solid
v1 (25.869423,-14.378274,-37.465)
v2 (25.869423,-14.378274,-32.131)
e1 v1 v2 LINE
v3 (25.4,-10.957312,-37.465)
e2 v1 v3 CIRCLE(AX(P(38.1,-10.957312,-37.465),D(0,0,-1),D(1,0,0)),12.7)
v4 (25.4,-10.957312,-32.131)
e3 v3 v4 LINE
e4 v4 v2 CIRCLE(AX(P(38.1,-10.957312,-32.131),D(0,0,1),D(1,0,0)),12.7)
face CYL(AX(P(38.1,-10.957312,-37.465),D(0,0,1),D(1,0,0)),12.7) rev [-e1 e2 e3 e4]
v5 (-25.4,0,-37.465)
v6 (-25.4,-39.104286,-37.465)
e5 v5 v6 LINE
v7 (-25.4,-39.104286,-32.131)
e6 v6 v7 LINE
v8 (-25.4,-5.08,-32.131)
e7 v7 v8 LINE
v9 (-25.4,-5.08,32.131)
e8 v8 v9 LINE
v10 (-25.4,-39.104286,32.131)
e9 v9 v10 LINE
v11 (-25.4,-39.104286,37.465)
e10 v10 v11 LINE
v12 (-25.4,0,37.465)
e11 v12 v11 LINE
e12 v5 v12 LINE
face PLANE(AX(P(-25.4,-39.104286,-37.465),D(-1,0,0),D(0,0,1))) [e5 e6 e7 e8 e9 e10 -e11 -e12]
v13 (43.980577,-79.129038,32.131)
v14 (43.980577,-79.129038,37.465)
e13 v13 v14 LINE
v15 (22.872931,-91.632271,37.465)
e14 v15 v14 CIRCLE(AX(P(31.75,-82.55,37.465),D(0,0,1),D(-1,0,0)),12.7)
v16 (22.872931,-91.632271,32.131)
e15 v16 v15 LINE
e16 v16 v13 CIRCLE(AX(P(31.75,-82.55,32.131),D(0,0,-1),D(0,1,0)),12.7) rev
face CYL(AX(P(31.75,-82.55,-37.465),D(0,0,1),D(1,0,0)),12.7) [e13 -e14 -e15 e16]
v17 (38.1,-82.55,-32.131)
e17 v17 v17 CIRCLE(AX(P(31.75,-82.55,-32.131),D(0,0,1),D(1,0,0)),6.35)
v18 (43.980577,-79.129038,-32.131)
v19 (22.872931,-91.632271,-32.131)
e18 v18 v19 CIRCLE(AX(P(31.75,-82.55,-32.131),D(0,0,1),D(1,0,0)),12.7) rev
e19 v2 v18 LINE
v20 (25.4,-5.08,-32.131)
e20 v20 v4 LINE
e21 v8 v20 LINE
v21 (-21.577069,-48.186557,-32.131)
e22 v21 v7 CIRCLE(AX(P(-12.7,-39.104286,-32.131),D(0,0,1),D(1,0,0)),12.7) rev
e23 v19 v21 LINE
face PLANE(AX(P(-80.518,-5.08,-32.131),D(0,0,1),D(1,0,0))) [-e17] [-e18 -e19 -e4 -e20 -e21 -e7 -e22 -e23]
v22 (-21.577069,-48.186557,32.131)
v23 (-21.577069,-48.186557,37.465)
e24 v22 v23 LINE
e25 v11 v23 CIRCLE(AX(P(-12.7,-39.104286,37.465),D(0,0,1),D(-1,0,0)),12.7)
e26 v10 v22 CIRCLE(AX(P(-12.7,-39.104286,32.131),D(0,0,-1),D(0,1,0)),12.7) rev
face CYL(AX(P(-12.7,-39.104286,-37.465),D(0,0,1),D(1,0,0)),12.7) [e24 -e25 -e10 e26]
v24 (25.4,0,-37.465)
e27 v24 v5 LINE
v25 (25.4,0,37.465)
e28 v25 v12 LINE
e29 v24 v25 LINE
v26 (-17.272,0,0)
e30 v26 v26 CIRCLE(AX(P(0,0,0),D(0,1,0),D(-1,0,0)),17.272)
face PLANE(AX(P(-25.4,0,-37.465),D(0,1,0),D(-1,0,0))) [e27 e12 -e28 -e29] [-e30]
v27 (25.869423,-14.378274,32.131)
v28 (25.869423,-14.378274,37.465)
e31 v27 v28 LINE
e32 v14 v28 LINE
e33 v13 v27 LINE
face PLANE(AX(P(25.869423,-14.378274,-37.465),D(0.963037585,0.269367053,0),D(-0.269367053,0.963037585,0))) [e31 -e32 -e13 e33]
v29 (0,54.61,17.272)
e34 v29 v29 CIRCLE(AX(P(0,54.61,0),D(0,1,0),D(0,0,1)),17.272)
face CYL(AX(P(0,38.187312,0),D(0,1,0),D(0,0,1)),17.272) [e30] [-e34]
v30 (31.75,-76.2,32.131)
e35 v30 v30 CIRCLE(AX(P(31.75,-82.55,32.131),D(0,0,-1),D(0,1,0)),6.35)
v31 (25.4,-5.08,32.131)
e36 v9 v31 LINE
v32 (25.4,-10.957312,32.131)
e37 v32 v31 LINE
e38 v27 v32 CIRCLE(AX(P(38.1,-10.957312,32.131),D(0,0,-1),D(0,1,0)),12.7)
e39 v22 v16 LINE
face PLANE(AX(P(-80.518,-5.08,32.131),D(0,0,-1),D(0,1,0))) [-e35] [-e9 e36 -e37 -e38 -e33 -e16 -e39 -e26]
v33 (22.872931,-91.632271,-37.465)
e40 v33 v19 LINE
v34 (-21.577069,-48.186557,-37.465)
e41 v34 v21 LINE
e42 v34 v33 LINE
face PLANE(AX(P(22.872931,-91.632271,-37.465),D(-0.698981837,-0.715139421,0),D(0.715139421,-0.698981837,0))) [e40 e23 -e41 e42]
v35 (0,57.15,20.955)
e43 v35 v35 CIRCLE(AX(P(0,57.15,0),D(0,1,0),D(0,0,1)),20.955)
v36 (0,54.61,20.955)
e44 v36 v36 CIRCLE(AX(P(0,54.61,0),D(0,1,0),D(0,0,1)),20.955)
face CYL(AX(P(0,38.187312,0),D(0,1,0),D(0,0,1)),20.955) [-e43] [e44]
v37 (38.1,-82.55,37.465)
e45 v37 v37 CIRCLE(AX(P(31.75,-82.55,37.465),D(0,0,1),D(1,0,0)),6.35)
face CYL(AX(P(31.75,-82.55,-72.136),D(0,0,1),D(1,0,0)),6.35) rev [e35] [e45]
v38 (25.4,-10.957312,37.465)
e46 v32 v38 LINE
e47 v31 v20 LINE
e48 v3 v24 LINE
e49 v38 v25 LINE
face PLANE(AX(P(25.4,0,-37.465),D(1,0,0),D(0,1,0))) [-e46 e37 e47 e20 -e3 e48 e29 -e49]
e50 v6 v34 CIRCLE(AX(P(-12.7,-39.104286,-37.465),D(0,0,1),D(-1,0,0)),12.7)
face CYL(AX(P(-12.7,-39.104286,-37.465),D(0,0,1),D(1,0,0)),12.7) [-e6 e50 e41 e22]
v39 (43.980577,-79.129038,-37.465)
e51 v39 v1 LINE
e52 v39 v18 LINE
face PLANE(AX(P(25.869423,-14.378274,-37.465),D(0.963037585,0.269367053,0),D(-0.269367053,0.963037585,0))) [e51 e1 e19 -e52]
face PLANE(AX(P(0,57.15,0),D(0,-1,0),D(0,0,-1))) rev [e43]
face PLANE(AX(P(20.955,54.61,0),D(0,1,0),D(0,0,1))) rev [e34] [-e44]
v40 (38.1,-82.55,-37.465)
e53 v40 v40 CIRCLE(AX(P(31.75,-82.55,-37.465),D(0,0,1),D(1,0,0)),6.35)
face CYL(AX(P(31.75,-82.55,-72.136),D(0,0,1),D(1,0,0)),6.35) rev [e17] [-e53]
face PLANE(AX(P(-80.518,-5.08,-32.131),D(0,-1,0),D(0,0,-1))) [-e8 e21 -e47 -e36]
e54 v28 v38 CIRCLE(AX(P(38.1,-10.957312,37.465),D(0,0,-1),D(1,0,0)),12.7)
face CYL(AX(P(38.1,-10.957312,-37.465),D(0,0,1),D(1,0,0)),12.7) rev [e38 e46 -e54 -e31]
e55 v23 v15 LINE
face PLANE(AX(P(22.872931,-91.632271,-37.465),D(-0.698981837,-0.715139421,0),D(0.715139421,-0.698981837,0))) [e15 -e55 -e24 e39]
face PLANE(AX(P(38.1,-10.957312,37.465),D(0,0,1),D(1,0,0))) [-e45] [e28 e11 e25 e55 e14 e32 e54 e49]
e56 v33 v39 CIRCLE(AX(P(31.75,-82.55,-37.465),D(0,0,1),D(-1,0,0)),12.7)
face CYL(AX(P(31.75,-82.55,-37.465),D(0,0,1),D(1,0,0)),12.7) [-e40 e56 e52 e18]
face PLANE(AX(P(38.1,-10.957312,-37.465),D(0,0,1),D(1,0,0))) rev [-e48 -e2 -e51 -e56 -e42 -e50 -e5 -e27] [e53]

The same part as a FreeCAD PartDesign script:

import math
import FreeCAD as App
import Part
import Sketcher
Q = App.Units.Quantity


def add_polygon(sketch, points):
    """Adds a closed chain of lines whose ends are joined by coincident constraints."""
    first, n = sketch.GeometryCount, len(points)
    for a, b in zip(points, points[1:] + points[:1]):
        sketch.addGeometry(Part.LineSegment(App.Vector(*a, 0), App.Vector(*b, 0)), False)
    for i in range(n):
        sketch.addConstraint(Sketcher.Constraint("Coincident", first + i, 2, first + (i + 1) % n, 1))

doc = App.newDocument("Part")
body = doc.addObject("PartDesign::Body", "Body")

# Sketch on XY plane
sketch1 = body.newObject("Sketcher::SketchObject", "Sketch")
sketch1.AttachmentSupport = (doc.getObject("XY_Plane"), [""])
sketch1.MapMode = "FlatFace"
add_polygon(sketch1, [(20.955, 57.15), (0, 57.15), (0, 0), (17.272, 0), (17.272, 54.61), (20.955, 54.61)])  # lines 0-5
sketch1.addConstraint([
    Sketcher.Constraint("Horizontal", 0),
    Sketcher.Constraint("Vertical", 1),
    Sketcher.Constraint("Horizontal", 2),
    Sketcher.Constraint("Vertical", 3),
    Sketcher.Constraint("Horizontal", 4),
    Sketcher.Constraint("Vertical", 5),
    Sketcher.Constraint("Coincident", 1, 2, -1, 1),
    Sketcher.Constraint("DistanceY", 5, 1, 5, 2, Q("0.1 in")),
    Sketcher.Constraint("DistanceX", 2, 1, 2, 2, Q("0.68 in")),
    Sketcher.Constraint("DistanceY", 1, 2, 1, 1, Q("2.25 in")),
    Sketcher.Constraint("DistanceX", 0, 2, 0, 1, Q("0.825 in")),
])
revolution = body.newObject("PartDesign::Revolution", "Revolution")
revolution.Profile = sketch1
revolution.ReferenceAxis = (sketch1, ["V_Axis"])
revolution.Angle = 360

# Sketch on XY plane
sketch2 = body.newObject("Sketcher::SketchObject", "Sketch001")
sketch2.AttachmentSupport = (doc.getObject("XY_Plane"), [""])
sketch2.MapMode = "FlatFace"
sketch2.addGeometry([
    Part.LineSegment(App.Vector(25.4, 0, 0), App.Vector(-25.4, 0, 0)),  # 0
    Part.LineSegment(App.Vector(-25.4, 0, 0), App.Vector(-25.4, -39.104286, 0)),  # 1
    Part.ArcOfCircle(Part.Circle(App.Vector(-12.7, -39.104286, 0), App.Vector(0, 0, 1), 12.7), math.radians(180), math.radians(225.654626)),  # 2
    Part.LineSegment(App.Vector(-21.577069, -48.186557, 0), App.Vector(22.872931, -91.632271, 0)),  # 3
    Part.ArcOfCircle(Part.Circle(App.Vector(31.75, -82.55, 0), App.Vector(0, 0, 1), 12.7), math.radians(-134.345374), math.radians(15.626606)),  # 4
    Part.LineSegment(App.Vector(43.980577, -79.129038, 0), App.Vector(25.869423, -14.378274, 0)),  # 5
    Part.ArcOfCircle(Part.Circle(App.Vector(38.1, -10.957312, 0), App.Vector(0, 0, 1), 12.7), math.radians(180), math.radians(195.626606)),  # 6
    Part.LineSegment(App.Vector(25.4, -10.957312, 0), App.Vector(25.4, 0, 0)),  # 7
], False)
sketch2.addConstraint([
    Sketcher.Constraint("Coincident", 0, 2, 1, 1),
    Sketcher.Constraint("Tangent", 1, 2, 2, 1),
    Sketcher.Constraint("Tangent", 2, 2, 3, 1),
    Sketcher.Constraint("Tangent", 3, 2, 4, 1),
    Sketcher.Constraint("Tangent", 4, 2, 5, 1),
    Sketcher.Constraint("Tangent", 5, 2, 6, 2),
    Sketcher.Constraint("Tangent", 6, 1, 7, 1),
    Sketcher.Constraint("Coincident", 7, 2, 0, 1),
    Sketcher.Constraint("Horizontal", 0),
    Sketcher.Constraint("Vertical", 1),
    Sketcher.Constraint("Vertical", 7),
    Sketcher.Constraint("Equal", 2, 4),
    Sketcher.Constraint("Equal", 4, 6),
    Sketcher.Constraint("Symmetric", 0, 2, 7, 2, -1, 1),
    Sketcher.Constraint("Radius", 2, Q("0.5 in")),
    Sketcher.Constraint("DistanceX", 0, 2, 0, 1, Q("2 in")),
    Sketcher.Constraint("DistanceX", -1, 1, 4, 3, Q("1.25 in")),
    Sketcher.Constraint("DistanceY", 4, 3, -1, 1, Q("3.25 in")),
    Sketcher.Constraint("Distance", 5, Q("67.235968 mm")),
    Sketcher.Constraint("DistanceY", 1, 2, 1, 1, Q("39.104286 mm")),
])
pad1 = body.newObject("PartDesign::Pad", "Pad")
pad1.Profile = sketch2
pad1.Type = "TwoLengths"
pad1.Length = Q("1.475 in")
pad1.Length2 = Q("1.475 in")

# Sketch on YZ plane
sketch3 = body.newObject("Sketcher::SketchObject", "Sketch002")
sketch3.AttachmentSupport = (doc.getObject("YZ_Plane"), [""])
sketch3.MapMode = "FlatFace"
sketch3.AttachmentOffset = App.Placement(App.Vector(0, 0, -1 * 25.4), App.Rotation())
add_polygon(sketch3, [(-5.08, -32.131), (-115.72825, -32.131), (-115.72825, 32.131), (-5.08, 32.131)])  # lines 0-3
sketch3.addConstraint([
    Sketcher.Constraint("Horizontal", 0),
    Sketcher.Constraint("Vertical", 1),
    Sketcher.Constraint("Horizontal", 2),
    Sketcher.Constraint("Vertical", 3),
    Sketcher.Constraint("DistanceY", 1, 1, 1, 2, Q("2.53 in")),
    Sketcher.Constraint("DistanceX", 2, 2, -1, 1, Q("0.2 in")),
    Sketcher.Constraint("DistanceY", 0, 2, -1, 1, Q("1.265 in")),
    Sketcher.Constraint("DistanceX", 0, 2, 0, 1, Q("110.64825 mm")),
])
pocket1 = body.newObject("PartDesign::Pocket", "Pocket")
pocket1.Profile = sketch3
pocket1.Type = "ThroughAll"
pocket1.Midplane = True

# Sketch on XY plane
sketch4 = body.newObject("Sketcher::SketchObject", "Sketch003")
sketch4.AttachmentSupport = (doc.getObject("XY_Plane"), [""])
sketch4.MapMode = "FlatFace"
sketch4.AttachmentOffset = App.Placement(App.Vector(0, 0, 1.475 * 25.4), App.Rotation())
sketch4.addGeometry(Part.Circle(App.Vector(31.75, -82.55, 0), App.Vector(0, 0, 1), 6.35), False)
sketch4.addConstraint([
    Sketcher.Constraint("Diameter", 0, Q("0.5 in")),
    Sketcher.Constraint("DistanceX", -1, 1, 0, 3, Q("1.25 in")),
    Sketcher.Constraint("DistanceY", 0, 3, -1, 1, Q("3.25 in")),
])
pocket2 = body.newObject("PartDesign::Pocket", "Pocket001")
pocket2.Profile = sketch4
pocket2.Length = Q("4.315 in")

doc.recompute()
